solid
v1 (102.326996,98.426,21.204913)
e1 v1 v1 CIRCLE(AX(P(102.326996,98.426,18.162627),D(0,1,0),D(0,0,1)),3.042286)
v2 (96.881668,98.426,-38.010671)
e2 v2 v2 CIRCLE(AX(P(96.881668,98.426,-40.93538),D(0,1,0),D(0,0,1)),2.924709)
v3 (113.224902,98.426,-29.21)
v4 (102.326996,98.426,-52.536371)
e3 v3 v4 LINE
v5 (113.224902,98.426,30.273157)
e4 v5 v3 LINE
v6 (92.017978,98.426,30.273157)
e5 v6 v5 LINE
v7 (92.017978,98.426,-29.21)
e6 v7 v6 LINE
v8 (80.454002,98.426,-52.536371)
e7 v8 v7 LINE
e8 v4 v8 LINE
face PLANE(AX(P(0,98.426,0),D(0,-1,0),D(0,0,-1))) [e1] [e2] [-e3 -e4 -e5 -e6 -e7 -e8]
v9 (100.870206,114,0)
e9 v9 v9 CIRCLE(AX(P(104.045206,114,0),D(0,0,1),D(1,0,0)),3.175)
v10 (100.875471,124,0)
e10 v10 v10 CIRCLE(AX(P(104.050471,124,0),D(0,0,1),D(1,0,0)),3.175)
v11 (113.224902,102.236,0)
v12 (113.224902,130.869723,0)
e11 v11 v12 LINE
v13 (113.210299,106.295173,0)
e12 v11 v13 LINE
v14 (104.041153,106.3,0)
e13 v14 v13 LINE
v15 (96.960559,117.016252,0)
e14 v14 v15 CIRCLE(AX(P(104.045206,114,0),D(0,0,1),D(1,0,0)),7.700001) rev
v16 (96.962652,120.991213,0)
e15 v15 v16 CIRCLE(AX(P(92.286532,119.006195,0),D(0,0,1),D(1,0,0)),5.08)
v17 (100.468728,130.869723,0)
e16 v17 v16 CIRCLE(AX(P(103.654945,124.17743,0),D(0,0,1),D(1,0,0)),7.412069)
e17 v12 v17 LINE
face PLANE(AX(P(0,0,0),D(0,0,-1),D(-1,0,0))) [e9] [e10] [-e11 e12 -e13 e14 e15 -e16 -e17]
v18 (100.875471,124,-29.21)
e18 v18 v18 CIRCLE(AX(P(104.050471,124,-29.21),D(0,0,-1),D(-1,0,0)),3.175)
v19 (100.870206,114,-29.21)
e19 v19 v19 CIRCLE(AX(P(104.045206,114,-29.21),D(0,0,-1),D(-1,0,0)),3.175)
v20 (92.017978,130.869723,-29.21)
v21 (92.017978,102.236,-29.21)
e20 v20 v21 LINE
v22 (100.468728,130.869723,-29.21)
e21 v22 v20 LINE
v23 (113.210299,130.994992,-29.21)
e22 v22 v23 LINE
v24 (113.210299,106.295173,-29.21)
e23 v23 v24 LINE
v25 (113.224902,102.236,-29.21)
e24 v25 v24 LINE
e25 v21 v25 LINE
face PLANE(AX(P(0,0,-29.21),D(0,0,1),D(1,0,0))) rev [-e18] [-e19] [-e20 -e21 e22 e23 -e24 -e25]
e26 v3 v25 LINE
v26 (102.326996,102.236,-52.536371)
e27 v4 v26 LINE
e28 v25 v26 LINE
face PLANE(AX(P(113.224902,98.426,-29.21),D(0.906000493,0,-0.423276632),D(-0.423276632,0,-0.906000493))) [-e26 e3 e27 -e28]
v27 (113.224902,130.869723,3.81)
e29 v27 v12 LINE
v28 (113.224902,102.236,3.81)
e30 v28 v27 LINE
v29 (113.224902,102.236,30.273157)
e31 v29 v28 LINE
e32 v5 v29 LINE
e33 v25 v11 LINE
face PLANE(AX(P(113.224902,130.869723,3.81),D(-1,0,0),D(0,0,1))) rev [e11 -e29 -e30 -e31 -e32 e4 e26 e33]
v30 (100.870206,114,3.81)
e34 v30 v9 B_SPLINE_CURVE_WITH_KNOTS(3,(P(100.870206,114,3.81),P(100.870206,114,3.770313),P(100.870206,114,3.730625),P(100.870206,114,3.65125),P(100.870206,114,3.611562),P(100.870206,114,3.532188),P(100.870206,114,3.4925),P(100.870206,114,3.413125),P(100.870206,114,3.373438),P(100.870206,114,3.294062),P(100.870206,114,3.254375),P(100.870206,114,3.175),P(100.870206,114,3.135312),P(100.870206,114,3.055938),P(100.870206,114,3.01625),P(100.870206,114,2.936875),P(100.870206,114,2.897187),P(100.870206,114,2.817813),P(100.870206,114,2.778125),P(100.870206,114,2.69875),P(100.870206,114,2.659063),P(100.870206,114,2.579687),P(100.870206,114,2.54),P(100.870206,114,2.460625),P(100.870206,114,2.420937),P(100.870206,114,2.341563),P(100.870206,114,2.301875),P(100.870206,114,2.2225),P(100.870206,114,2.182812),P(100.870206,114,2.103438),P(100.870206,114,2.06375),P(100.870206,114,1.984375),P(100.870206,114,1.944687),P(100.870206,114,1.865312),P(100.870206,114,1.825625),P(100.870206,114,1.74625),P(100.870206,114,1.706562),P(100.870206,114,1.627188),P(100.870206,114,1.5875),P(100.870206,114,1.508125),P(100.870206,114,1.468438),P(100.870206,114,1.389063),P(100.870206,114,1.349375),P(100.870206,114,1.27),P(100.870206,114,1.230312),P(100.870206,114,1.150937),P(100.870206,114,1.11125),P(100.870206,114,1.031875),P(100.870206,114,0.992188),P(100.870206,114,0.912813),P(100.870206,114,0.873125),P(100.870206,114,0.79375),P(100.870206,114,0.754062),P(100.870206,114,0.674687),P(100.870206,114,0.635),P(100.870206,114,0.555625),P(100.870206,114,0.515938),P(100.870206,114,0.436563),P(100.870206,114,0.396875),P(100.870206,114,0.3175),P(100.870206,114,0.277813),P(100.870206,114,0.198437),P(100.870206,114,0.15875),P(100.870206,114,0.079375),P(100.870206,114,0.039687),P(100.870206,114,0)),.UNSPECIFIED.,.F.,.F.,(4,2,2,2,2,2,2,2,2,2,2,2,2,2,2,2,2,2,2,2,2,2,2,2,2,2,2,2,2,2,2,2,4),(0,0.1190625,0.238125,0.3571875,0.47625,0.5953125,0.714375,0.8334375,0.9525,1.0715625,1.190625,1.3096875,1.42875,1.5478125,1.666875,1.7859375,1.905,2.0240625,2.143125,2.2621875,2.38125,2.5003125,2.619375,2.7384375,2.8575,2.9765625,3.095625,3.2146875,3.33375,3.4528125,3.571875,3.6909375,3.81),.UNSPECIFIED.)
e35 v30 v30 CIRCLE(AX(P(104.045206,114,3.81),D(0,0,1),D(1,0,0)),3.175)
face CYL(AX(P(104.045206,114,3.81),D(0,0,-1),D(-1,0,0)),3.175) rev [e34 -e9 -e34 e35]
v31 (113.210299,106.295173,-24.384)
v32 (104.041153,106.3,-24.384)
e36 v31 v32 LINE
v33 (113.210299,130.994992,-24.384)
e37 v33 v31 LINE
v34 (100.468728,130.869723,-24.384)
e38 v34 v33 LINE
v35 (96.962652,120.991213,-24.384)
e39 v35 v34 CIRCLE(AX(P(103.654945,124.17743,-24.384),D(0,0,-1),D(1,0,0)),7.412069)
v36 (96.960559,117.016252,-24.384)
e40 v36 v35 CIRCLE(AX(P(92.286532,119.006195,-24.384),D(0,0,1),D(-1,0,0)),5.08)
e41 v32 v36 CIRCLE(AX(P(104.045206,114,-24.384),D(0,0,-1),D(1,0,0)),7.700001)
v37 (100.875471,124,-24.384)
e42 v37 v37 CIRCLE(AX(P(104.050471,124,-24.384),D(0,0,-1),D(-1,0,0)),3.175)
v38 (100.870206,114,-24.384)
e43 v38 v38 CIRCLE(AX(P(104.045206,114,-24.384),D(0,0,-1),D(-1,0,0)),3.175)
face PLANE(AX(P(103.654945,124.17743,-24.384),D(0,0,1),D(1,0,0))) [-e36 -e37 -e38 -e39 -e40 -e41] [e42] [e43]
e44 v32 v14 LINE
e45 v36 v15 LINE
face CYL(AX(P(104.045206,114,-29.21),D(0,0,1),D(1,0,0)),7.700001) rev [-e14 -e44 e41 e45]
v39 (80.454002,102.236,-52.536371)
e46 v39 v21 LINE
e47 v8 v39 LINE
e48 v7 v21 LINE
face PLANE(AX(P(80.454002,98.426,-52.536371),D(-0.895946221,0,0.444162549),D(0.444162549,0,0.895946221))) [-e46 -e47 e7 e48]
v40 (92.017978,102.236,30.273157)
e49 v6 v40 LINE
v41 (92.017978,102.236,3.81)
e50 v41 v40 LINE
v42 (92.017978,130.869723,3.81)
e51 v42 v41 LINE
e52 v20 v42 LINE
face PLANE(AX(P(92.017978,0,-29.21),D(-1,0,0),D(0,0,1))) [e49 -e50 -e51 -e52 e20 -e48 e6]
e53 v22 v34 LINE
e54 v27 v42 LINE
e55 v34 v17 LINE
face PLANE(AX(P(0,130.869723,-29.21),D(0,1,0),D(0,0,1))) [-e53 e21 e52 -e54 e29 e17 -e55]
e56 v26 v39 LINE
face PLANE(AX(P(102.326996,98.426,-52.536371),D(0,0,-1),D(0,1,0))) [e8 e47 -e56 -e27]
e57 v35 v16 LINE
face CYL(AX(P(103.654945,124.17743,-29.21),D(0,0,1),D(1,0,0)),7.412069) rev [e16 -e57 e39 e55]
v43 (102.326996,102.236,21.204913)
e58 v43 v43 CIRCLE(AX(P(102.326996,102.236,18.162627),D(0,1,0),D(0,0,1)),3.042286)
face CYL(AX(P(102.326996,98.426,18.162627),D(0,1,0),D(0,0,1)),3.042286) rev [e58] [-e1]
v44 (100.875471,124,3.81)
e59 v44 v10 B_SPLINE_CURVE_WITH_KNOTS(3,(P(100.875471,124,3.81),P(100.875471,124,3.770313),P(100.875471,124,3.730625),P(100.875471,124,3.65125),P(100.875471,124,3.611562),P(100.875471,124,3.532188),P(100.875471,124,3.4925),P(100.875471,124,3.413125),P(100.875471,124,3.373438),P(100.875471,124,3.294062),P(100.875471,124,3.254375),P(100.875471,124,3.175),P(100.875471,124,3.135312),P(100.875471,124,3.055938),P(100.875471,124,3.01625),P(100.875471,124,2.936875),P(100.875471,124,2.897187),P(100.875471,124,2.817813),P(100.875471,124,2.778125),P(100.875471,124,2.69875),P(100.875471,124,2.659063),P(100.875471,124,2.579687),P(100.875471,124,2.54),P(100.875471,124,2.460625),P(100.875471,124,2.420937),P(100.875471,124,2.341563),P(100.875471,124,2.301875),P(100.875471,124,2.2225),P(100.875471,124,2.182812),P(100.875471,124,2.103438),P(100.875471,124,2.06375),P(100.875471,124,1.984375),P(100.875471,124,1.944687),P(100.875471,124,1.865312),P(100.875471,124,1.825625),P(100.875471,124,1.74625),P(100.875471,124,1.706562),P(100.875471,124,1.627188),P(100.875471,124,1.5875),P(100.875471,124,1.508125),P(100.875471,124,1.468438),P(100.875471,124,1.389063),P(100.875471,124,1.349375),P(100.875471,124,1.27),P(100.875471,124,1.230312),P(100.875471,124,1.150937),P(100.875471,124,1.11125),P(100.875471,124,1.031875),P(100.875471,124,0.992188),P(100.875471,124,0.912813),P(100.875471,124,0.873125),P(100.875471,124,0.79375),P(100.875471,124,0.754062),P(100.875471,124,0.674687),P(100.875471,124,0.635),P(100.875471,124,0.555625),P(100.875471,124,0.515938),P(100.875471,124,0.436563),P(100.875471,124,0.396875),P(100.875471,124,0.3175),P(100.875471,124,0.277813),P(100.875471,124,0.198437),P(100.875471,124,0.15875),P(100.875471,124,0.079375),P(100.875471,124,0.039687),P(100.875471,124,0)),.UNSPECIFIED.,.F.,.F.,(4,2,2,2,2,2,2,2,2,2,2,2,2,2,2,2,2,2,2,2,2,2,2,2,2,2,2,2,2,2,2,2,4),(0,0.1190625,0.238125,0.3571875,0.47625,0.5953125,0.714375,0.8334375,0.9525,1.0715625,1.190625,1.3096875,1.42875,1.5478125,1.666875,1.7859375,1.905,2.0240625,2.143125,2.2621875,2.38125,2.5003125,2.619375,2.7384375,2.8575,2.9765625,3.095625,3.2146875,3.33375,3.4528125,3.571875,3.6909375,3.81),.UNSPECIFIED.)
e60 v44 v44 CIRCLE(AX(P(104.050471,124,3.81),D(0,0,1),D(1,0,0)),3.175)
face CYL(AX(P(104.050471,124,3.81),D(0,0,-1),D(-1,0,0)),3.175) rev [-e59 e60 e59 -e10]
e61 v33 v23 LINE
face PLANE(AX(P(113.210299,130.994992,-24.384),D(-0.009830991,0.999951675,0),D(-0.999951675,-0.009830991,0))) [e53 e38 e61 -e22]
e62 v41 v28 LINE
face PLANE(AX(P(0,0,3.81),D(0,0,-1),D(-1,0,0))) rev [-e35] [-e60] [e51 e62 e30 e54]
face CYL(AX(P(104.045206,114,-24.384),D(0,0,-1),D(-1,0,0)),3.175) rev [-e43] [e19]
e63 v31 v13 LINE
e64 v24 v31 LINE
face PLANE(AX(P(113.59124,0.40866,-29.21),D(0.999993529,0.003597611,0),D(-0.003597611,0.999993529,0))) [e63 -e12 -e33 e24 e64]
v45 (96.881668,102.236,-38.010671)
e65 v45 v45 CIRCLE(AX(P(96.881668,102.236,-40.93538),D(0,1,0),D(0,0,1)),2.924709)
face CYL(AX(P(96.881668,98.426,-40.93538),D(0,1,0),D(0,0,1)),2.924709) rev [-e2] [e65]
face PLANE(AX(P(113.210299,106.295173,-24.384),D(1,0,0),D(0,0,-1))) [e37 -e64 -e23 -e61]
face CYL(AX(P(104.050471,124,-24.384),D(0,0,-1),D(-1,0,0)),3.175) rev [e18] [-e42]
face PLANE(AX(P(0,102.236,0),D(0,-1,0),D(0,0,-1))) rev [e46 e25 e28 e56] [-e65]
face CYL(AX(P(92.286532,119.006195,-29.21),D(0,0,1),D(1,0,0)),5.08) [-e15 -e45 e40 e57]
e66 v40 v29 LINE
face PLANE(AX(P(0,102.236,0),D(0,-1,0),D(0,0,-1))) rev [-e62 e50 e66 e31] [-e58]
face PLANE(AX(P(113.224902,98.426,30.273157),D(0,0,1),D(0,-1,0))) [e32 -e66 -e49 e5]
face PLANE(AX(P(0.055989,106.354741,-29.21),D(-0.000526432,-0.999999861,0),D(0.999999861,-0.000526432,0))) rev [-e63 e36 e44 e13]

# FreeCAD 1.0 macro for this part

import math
import FreeCAD as App
import Part
import Sketcher
from FreeCAD import Vector
Q = App.Units.Quantity

doc = App.newDocument("Part")
body = doc.addObject("PartDesign::Body", "Body")

# Sketch on XY plane
sketch1 = body.newObject("Sketcher::SketchObject", "Sketch")
sketch1.AttachmentSupport = (doc.getObject("XY_Plane"), [""])
sketch1.MapMode = "FlatFace"
sketch1.addGeometry([
    Part.LineSegment(Vector(92, 102.2, 0), Vector(113.2, 102.2, 0)),  # 0
    Part.LineSegment(Vector(113.2, 102.2, 0), Vector(113.2, 106.3, 0)),  # 1
    Part.LineSegment(Vector(113.2, 106.3, 0), Vector(104, 106.3, 0)),  # 2
    Part.ArcOfCircle(Part.Circle(Vector(104, 114, 0), Vector(0, 0, 1), 7.7), math.radians(157), math.radians(270)),  # 3
    Part.ArcOfCircle(Part.Circle(Vector(92.3, 119, 0), Vector(0, 0, 1), 5.1), math.radians(-23), math.radians(23)),  # 4
    Part.ArcOfCircle(Part.Circle(Vector(103.7, 124.2, 0), Vector(0, 0, 1), 7.4), math.radians(115), math.radians(205)),  # 5
    Part.LineSegment(Vector(100.5, 130.9, 0), Vector(92, 130.9, 0)),  # 6
    Part.LineSegment(Vector(92, 130.9, 0), Vector(92, 102.2, 0)),  # 7
], False)
sketch1.addConstraint([
    Sketcher.Constraint("Coincident", 0, 2, 1, 1),
    Sketcher.Constraint("Coincident", 1, 2, 2, 1),
    Sketcher.Constraint("Tangent", 2, 2, 3, 2),
    Sketcher.Constraint("Tangent", 3, 1, 4, 1),
    Sketcher.Constraint("Coincident", 4, 2, 5, 2),
    Sketcher.Constraint("Coincident", 5, 1, 6, 1),
    Sketcher.Constraint("Coincident", 6, 2, 7, 1),
    Sketcher.Constraint("Coincident", 7, 2, 0, 1),
    Sketcher.Constraint("Horizontal", 0),
    Sketcher.Constraint("Horizontal", 6),
    Sketcher.Constraint("Vertical", 7),
    Sketcher.Constraint("Radius", 4, Q("0.2 in")),
    Sketcher.Constraint("Radius", 3, 7.700001),
    Sketcher.Constraint("DistanceY", 0, 2, 2, 2, Q("0.16 in")),
    Sketcher.Constraint("Radius", 5, 7.412069),
    Sketcher.Constraint("Distance", 1, 4.059199),
    Sketcher.Constraint("DistanceX", 6, 2, 6, 1, 8.45075),
    Sketcher.Constraint("DistanceY", -1, 1, 3, 3, 114.0),
    Sketcher.Constraint("DistanceX", -1, 1, 1, 2, 113.210299),
    Sketcher.Constraint("DistanceX", 4, 2, 2, 2, 7.078501),
    Sketcher.Constraint("DistanceX", 0, 1, 0, 2, 21.206924),
    Sketcher.Constraint("DistanceY", 7, 2, 7, 1, 28.633723),
    Sketcher.Constraint("DistanceX", -1, 1, 4, 3, 92.286532),
    Sketcher.Constraint("DistanceY", -1, 1, 5, 3, 124.17743),
    Sketcher.Constraint("DistanceX", -1, 1, 3, 1, 96.960559),
])
pad1 = body.newObject("PartDesign::Pad", "Pad")
pad1.Profile = sketch1
pad1.Length = Q("1.15 in")
pad1.Reversed = True

# Sketch on XY plane
sketch2 = body.newObject("Sketcher::SketchObject", "Sketch001")
sketch2.AttachmentSupport = (doc.getObject("XY_Plane"), [""])
sketch2.MapMode = "FlatFace"
sketch2.addGeometry([
    Part.LineSegment(Vector(92, 130.9, 0), Vector(92, 102.2, 0)),  # 0
    Part.LineSegment(Vector(92, 102.2, 0), Vector(113.2, 102.2, 0)),  # 1
    Part.LineSegment(Vector(113.2, 102.2, 0), Vector(113.2, 130.9, 0)),  # 2
    Part.LineSegment(Vector(113.2, 130.9, 0), Vector(92, 130.9, 0)),  # 3
    Part.Circle(Vector(104, 114, 0), Vector(0, 0, 1), 3.2),  # 4
    Part.Circle(Vector(104.1, 124, 0), Vector(0, 0, 1), 3.2),  # 5
], False)
sketch2.addConstraint([
    Sketcher.Constraint("Coincident", 0, 2, 1, 1),
    Sketcher.Constraint("Coincident", 1, 2, 2, 1),
    Sketcher.Constraint("Coincident", 2, 2, 3, 1),
    Sketcher.Constraint("Coincident", 3, 2, 0, 1),
    Sketcher.Constraint("Vertical", 0),
    Sketcher.Constraint("Horizontal", 1),
    Sketcher.Constraint("Vertical", 2),
    Sketcher.Constraint("Horizontal", 3),
    Sketcher.Constraint("Equal", 4, 5),
    Sketcher.Constraint("Diameter", 4, Q("0.25 in")),
    Sketcher.Constraint("DistanceY", -1, 1, 4, 3, 114.0),
    Sketcher.Constraint("DistanceY", -1, 1, 5, 3, 124.0),
    Sketcher.Constraint("DistanceY", -1, 1, 0, 2, 102.236),
    Sketcher.Constraint("DistanceX", 1, 1, 1, 2, 21.206924),
    Sketcher.Constraint("DistanceY", 0, 2, 0, 1, 28.633723),
    Sketcher.Constraint("DistanceX", -1, 1, 5, 3, 104.050471),
    Sketcher.Constraint("DistanceX", 0, 2, 4, 3, 12.027228),
    Sketcher.Constraint("DistanceX", 5, 3, 1, 2, 9.174431),
])
pad2 = body.newObject("PartDesign::Pad", "Pad001")
pad2.Profile = sketch2
pad2.Length = Q("0.15 in")

# Sketch on XY plane
sketch3 = body.newObject("Sketcher::SketchObject", "Sketch002")
sketch3.AttachmentSupport = (doc.getObject("XY_Plane"), [""])
sketch3.MapMode = "FlatFace"
sketch3.AttachmentOffset = App.Placement(Vector(0, 0, -0.96 * 25.4), App.Rotation())
sketch3.addGeometry([
    Part.LineSegment(Vector(113.2, 131, 0), Vector(113.2, 106.3, 0)),  # 0
    Part.LineSegment(Vector(113.2, 106.3, 0), Vector(104, 106.3, 0)),  # 1
    Part.ArcOfCircle(Part.Circle(Vector(104, 114, 0), Vector(0, 0, 1), 7.7), math.radians(157), math.radians(270)),  # 2
    Part.ArcOfCircle(Part.Circle(Vector(92.3, 119, 0), Vector(0, 0, 1), 5.1), math.radians(-23), math.radians(23)),  # 3
    Part.ArcOfCircle(Part.Circle(Vector(103.7, 124.2, 0), Vector(0, 0, 1), 7.4), math.radians(115), math.radians(205)),  # 4
    Part.LineSegment(Vector(100.5, 130.9, 0), Vector(113.2, 131, 0)),  # 5
    Part.Circle(Vector(104, 114, 0), Vector(0, 0, 1), 3.2),  # 6
    Part.Circle(Vector(104.1, 124, 0), Vector(0, 0, 1), 3.2),  # 7
], False)
sketch3.addConstraint([
    Sketcher.Constraint("Coincident", 0, 2, 1, 1),
    Sketcher.Constraint("Tangent", 1, 2, 2, 2),
    Sketcher.Constraint("Tangent", 2, 1, 3, 1),
    Sketcher.Constraint("Coincident", 3, 2, 4, 2),
    Sketcher.Constraint("Coincident", 4, 1, 5, 1),
    Sketcher.Constraint("Coincident", 5, 2, 0, 1),
    Sketcher.Constraint("Vertical", 0),
    Sketcher.Constraint("Coincident", 6, 3, 2, 3),
    Sketcher.Constraint("Equal", 6, 7),
    Sketcher.Constraint("Radius", 3, Q("0.2 in")),
    Sketcher.Constraint("Diameter", 6, Q("0.25 in")),
    Sketcher.Constraint("Radius", 2, 7.700001),
    Sketcher.Constraint("Radius", 4, 7.412069),
    Sketcher.Constraint("DistanceY", 0, 2, 0, 1, 24.699818),
    Sketcher.Constraint("DistanceY", -1, 1, 2, 3, 114.0),
    Sketcher.Constraint("DistanceY", -1, 1, 7, 3, 124.0),
    Sketcher.Constraint("DistanceX", -1, 1, 0, 2, 113.210299),
    Sketcher.Constraint("DistanceX", -1, 1, 3, 3, 92.286532),
    Sketcher.Constraint("DistanceY", -1, 1, 4, 3, 124.17743),
    Sketcher.Constraint("DistanceX", -1, 1, 7, 3, 104.050471),
    Sketcher.Constraint("DistanceX", -1, 1, 2, 1, 96.960559),
    Sketcher.Constraint("DistanceX", -1, 1, 4, 1, 100.468728),
    Sketcher.Constraint("DistanceY", -1, 1, 5, 2, 130.994992),
    Sketcher.Constraint("DistanceX", 4, 3, 2, 3, 0.390261),
])
pad3 = body.newObject("PartDesign::Pad", "Pad002")
pad3.Profile = sketch3
pad3.Length = Q("0.19 in")
pad3.Reversed = True

# Sketch on XZ plane
sketch4 = body.newObject("Sketcher::SketchObject", "Sketch003")
sketch4.AttachmentSupport = (doc.getObject("XZ_Plane"), [""])
sketch4.MapMode = "FlatFace"
sketch4.AttachmentOffset = App.Placement(Vector(0, 0, -102.236), App.Rotation())
sketch4.addGeometry([
    Part.LineSegment(Vector(92, 30.3, 0), Vector(113.2, 30.3, 0)),  # 0
    Part.LineSegment(Vector(113.2, 30.3, 0), Vector(113.2, -29.2, 0)),  # 1
    Part.LineSegment(Vector(113.2, -29.2, 0), Vector(102.3, -52.5, 0)),  # 2
    Part.LineSegment(Vector(102.3, -52.5, 0), Vector(80.5, -52.5, 0)),  # 3
    Part.LineSegment(Vector(80.5, -52.5, 0), Vector(92, -29.2, 0)),  # 4
    Part.LineSegment(Vector(92, -29.2, 0), Vector(92, 30.3, 0)),  # 5
    Part.Circle(Vector(102.3, 18.2, 0), Vector(0, 0, 1), 3),  # 6
    Part.Circle(Vector(96.9, -40.9, 0), Vector(0, 0, 1), 2.9),  # 7
], False)
sketch4.addConstraint([
    Sketcher.Constraint("Coincident", 0, 2, 1, 1),
    Sketcher.Constraint("Coincident", 1, 2, 2, 1),
    Sketcher.Constraint("Coincident", 2, 2, 3, 1),
    Sketcher.Constraint("Coincident", 3, 2, 4, 1),
    Sketcher.Constraint("Coincident", 4, 2, 5, 1),
    Sketcher.Constraint("Coincident", 5, 2, 0, 1),
    Sketcher.Constraint("Horizontal", 0),
    Sketcher.Constraint("Vertical", 1),
    Sketcher.Constraint("Horizontal", 3),
    Sketcher.Constraint("Vertical", 5),
    Sketcher.Constraint("Horizontal", 1, 2, 4, 2),
    Sketcher.Constraint("Vertical", 6, 3, 2, 2),
    Sketcher.Constraint("DistanceY", 1, 2, -1, 1, Q("1.15 in")),
    Sketcher.Constraint("Diameter", 7, 5.849418),
    Sketcher.Constraint("Diameter", 6, 6.084572),
    Sketcher.Constraint("DistanceY", 2, 2, 6, 3, 70.698999),
    Sketcher.Constraint("DistanceX", 3, 2, 1, 2, 32.7709),
    Sketcher.Constraint("Distance", 4, 26.035459),
    Sketcher.Constraint("DistanceX", 0, 1, 0, 2, 21.206924),
    Sketcher.Constraint("DistanceX", 3, 2, 3, 1, 21.872994),
    Sketcher.Constraint("DistanceY", 1, 2, 1, 1, 59.483157),
    Sketcher.Constraint("DistanceX", -1, 1, 7, 3, 96.881668),
    Sketcher.Constraint("DistanceY", 7, 3, -1, 1, 40.93538),
    Sketcher.Constraint("DistanceX", 7, 3, 6, 3, 5.445328),
])
pad4 = body.newObject("PartDesign::Pad", "Pad003")
pad4.Profile = sketch4
pad4.Length = Q("0.15 in")

doc.recompute()
